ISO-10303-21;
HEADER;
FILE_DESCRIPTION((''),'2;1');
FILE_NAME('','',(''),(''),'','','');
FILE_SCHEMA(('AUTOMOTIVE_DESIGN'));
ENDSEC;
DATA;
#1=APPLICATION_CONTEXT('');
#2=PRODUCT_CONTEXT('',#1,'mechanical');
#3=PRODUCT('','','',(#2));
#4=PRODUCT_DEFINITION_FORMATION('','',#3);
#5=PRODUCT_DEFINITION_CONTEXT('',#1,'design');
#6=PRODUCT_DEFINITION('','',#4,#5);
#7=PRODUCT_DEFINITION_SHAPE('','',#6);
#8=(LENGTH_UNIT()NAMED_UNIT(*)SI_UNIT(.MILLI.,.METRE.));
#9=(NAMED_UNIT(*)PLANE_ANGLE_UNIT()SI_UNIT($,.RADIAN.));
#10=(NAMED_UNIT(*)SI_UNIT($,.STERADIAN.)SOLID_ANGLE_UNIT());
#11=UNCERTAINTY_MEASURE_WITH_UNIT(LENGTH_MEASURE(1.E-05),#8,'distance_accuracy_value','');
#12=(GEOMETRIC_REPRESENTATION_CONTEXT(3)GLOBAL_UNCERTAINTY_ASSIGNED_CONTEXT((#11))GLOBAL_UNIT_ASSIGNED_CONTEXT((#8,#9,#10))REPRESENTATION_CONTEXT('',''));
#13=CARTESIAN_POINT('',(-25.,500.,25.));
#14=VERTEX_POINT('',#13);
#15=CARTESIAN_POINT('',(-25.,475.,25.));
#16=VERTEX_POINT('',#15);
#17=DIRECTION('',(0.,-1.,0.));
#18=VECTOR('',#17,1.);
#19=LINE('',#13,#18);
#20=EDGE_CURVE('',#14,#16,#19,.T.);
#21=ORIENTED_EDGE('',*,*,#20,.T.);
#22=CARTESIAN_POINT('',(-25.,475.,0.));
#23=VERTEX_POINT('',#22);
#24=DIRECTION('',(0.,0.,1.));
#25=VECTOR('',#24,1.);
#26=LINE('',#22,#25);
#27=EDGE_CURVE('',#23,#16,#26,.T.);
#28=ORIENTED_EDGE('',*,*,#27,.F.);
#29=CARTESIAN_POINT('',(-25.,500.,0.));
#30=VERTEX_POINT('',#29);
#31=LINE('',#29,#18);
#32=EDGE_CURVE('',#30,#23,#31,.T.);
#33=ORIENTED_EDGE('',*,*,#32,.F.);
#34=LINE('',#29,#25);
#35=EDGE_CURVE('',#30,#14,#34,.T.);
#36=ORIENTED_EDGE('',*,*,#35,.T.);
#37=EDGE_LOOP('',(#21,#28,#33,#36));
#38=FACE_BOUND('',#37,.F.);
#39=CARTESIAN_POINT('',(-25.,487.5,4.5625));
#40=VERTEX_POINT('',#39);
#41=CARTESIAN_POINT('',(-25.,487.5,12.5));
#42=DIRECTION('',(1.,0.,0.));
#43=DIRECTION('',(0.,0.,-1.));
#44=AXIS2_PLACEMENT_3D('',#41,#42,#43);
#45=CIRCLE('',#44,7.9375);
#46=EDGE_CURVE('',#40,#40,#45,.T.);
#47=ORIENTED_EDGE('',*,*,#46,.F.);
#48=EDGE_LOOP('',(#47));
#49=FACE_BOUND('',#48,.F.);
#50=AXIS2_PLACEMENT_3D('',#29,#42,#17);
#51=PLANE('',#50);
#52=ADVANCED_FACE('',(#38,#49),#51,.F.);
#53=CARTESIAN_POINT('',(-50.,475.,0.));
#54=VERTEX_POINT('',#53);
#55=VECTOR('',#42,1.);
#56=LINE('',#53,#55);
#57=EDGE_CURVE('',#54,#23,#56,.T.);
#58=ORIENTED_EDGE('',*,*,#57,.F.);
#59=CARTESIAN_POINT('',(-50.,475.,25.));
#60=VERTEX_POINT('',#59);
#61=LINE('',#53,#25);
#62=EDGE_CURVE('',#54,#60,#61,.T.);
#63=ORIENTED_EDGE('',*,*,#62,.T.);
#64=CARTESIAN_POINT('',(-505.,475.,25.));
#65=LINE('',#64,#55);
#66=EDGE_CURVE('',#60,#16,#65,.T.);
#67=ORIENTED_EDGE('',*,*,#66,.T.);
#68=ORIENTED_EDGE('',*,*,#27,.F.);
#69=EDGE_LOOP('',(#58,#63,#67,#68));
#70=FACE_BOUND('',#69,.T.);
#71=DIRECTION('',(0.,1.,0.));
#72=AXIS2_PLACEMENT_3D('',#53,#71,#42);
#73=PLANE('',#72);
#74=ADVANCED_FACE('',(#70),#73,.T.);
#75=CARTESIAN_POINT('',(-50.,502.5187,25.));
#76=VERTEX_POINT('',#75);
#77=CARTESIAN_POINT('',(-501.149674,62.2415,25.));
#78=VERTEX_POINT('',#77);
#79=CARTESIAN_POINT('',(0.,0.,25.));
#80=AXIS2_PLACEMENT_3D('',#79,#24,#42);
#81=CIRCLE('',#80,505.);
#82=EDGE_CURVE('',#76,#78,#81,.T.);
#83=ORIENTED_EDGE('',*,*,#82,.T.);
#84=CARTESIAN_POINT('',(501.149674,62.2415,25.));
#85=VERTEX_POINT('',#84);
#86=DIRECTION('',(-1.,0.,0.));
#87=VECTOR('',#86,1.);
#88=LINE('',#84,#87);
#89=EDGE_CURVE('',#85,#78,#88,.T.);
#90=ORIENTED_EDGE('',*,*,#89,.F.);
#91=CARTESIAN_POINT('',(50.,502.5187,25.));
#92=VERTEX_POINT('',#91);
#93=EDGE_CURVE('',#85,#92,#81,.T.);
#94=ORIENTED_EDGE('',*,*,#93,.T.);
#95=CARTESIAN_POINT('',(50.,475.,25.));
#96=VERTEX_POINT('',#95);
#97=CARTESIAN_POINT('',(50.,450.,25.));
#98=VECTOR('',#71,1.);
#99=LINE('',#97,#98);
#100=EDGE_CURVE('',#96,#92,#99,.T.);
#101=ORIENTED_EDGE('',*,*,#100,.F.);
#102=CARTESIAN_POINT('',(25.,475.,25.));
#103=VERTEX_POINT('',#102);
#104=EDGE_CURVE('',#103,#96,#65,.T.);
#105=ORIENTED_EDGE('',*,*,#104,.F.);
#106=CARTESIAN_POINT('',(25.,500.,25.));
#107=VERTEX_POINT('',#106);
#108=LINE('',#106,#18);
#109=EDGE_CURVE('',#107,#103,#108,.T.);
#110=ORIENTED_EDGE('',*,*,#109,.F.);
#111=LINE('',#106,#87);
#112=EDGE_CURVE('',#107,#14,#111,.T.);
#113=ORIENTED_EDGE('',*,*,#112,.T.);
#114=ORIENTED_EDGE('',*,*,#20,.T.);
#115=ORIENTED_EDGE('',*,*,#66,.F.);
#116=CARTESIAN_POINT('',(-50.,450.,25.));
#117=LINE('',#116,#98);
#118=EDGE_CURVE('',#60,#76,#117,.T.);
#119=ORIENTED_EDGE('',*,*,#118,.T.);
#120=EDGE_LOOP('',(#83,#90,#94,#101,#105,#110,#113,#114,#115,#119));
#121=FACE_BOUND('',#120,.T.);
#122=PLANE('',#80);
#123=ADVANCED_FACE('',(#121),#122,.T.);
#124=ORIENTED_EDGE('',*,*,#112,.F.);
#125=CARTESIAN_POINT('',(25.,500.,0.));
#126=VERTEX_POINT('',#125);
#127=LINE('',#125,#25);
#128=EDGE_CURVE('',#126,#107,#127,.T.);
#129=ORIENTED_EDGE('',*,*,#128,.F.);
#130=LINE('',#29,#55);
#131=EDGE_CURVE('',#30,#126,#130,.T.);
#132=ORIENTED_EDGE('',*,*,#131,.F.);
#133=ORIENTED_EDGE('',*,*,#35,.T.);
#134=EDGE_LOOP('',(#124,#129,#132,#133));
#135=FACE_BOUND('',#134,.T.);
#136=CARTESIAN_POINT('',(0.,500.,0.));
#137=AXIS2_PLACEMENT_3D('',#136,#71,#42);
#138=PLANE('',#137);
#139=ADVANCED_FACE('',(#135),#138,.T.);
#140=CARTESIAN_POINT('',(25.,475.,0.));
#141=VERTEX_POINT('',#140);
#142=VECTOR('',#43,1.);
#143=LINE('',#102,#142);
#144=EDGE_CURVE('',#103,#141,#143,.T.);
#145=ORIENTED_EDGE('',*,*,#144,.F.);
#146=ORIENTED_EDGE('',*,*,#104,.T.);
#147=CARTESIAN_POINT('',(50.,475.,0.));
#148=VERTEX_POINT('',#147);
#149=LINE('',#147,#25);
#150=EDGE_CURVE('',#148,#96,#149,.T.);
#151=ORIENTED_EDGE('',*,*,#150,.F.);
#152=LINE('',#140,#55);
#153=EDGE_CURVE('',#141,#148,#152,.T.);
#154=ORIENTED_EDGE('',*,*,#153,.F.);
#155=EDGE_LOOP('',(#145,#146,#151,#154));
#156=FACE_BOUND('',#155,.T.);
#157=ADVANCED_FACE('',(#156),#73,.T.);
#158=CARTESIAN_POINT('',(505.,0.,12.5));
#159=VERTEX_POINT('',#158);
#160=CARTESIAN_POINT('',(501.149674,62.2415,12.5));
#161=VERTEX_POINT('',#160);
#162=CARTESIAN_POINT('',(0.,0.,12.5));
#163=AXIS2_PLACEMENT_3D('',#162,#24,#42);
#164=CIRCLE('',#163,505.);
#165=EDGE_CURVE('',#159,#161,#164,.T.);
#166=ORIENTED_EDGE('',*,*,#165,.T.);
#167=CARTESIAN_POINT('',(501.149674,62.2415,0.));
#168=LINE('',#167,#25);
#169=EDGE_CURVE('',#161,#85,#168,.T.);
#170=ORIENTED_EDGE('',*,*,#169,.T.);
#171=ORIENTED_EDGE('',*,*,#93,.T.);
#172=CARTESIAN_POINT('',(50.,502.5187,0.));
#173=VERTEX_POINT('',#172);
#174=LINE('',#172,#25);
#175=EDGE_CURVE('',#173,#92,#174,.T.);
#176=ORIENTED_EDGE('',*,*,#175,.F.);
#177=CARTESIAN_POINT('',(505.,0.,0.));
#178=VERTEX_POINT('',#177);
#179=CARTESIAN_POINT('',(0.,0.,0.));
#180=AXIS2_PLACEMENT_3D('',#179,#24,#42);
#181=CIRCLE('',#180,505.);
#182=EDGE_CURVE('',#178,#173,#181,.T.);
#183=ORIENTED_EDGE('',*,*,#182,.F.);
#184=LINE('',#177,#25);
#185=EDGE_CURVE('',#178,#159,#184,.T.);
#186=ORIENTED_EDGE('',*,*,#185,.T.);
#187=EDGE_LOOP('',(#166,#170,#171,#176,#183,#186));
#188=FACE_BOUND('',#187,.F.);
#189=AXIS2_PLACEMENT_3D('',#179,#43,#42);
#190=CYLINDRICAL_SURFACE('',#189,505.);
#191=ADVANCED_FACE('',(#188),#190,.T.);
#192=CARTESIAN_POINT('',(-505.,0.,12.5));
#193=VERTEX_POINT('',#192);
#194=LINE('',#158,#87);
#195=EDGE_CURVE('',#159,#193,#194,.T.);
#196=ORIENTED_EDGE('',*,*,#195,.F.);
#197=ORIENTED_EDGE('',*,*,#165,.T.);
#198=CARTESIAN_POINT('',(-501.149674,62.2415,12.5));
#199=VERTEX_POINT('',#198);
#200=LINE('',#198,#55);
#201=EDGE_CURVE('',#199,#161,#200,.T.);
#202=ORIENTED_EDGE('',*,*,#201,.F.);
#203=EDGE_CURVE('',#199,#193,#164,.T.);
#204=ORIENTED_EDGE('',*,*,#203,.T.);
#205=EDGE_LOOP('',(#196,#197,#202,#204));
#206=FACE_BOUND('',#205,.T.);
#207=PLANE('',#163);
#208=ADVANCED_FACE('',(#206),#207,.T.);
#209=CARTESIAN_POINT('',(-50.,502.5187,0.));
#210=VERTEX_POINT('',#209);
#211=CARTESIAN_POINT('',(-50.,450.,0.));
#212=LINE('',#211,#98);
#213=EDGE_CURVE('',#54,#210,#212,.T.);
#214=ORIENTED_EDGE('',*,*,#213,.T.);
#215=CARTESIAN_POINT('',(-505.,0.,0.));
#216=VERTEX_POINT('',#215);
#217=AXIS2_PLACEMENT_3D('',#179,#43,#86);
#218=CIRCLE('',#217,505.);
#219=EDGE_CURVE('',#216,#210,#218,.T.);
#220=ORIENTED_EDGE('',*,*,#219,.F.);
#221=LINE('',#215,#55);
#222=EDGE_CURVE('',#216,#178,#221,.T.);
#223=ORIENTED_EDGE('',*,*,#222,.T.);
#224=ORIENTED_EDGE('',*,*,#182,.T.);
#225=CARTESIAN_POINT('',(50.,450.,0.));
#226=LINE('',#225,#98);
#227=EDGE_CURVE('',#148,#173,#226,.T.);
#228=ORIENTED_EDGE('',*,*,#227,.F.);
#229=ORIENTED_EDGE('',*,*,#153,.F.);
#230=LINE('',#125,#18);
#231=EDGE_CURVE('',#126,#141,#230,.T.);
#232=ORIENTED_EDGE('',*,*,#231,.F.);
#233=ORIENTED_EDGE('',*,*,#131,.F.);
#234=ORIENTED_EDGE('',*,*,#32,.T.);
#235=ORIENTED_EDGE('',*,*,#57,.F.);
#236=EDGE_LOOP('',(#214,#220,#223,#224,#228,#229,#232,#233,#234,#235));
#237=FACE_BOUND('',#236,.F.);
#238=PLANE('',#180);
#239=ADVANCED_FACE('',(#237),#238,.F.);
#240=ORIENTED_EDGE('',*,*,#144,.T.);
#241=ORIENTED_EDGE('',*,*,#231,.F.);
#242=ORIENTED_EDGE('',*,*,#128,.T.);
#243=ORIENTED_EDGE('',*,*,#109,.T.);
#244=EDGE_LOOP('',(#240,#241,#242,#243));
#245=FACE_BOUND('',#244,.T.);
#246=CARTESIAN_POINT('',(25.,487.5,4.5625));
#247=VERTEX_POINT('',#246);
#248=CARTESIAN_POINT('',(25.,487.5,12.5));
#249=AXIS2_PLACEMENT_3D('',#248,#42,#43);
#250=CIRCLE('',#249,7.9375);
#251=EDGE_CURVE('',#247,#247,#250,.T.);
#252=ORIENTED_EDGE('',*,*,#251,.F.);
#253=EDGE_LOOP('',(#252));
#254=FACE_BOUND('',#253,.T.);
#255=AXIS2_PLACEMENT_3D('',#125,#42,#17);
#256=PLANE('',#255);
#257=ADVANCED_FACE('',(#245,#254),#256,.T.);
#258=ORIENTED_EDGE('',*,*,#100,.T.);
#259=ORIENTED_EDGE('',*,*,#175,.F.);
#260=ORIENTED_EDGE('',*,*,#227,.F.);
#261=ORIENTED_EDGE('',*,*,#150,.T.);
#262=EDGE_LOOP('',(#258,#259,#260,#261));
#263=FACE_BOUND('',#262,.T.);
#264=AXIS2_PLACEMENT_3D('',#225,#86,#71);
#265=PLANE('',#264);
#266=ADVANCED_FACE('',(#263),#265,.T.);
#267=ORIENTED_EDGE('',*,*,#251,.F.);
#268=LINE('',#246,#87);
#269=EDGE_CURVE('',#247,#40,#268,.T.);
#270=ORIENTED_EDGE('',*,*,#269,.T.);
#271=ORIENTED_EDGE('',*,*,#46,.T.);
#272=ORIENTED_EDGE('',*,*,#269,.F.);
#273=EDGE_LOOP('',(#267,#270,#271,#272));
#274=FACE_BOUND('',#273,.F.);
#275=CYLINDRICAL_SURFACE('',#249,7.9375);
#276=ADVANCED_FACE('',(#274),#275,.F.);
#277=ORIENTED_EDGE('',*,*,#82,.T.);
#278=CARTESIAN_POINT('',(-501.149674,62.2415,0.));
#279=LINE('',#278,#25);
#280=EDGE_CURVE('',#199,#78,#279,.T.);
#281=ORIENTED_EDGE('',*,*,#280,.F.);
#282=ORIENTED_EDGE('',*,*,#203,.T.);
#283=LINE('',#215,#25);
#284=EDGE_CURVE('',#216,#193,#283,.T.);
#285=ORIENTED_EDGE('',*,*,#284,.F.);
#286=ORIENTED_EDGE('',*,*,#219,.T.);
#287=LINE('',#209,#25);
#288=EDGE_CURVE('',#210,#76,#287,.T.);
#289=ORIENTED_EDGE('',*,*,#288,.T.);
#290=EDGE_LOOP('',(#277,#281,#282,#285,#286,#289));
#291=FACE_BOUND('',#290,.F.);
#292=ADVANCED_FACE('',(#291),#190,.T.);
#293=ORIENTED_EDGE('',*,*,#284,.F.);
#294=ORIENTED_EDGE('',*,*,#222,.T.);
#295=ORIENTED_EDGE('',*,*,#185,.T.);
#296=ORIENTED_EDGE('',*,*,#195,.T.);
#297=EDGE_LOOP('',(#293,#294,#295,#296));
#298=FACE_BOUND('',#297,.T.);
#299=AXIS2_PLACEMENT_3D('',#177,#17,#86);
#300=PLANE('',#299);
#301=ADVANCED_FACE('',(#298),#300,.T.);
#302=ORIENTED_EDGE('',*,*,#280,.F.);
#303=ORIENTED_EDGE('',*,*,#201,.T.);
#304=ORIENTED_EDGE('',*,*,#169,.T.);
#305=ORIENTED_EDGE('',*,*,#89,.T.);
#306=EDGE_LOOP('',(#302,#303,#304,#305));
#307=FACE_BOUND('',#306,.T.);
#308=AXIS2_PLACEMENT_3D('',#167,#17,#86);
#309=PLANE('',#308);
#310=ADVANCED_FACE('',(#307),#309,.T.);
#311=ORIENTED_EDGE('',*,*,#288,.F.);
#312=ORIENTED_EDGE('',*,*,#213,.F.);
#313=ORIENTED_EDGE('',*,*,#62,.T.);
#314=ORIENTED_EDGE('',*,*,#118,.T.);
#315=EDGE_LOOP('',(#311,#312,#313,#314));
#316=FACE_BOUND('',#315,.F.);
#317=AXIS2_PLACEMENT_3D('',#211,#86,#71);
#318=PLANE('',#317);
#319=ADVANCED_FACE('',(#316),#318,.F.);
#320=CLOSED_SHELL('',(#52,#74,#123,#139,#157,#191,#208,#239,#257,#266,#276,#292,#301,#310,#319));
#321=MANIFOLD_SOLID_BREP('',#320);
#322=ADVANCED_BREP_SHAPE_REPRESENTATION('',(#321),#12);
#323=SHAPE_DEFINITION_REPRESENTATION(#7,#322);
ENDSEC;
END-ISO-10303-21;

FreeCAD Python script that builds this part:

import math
import FreeCAD as App
import Part
import Sketcher
Q = App.Units.Quantity


def add_polygon(sketch, points):
    """Adds a closed chain of lines whose ends are joined by coincident constraints."""
    first, n = sketch.GeometryCount, len(points)
    for a, b in zip(points, points[1:] + points[:1]):
        sketch.addGeometry(Part.LineSegment(App.Vector(*a, 0), App.Vector(*b, 0)), False)
    for i in range(n):
        sketch.addConstraint(Sketcher.Constraint("Coincident", first + i, 2, first + (i + 1) % n, 1))

doc = App.newDocument("Part")
params = doc.addObject("Spreadsheet::Sheet", "Params")
for row, (alias, value) in enumerate([
    ("sketch1_radius", "505 mm"),
    ("sketch1_width", "25 mm"),
    ("sketch1_width2", "50 mm"),
    ("pad1_length", "25 mm"),
    ("pocket1_length", "50 mm"),
    ("sketch3_width", "25 mm"),
    ("pad2_length", "25 mm"),
    ("sketch4_radius", "505 mm"),
    ("pad3_length", "12.5 mm"),
], start=1):
    params.set(f"A{row}", alias)
    params.set(f"B{row}", "=" + value)
    params.setAlias(f"B{row}", alias)

body = doc.addObject("PartDesign::Body", "Body")

# Sketch on XY plane
sketch1 = body.newObject("Sketcher::SketchObject", "Sketch")
sketch1.AttachmentSupport = (doc.getObject("XY_Plane"), [""])
sketch1.MapMode = "FlatFace"
sketch1.addGeometry([
    Part.ArcOfCircle(Part.Circle(App.Vector(0, 0, 0), App.Vector(0, 0, 1), 505), math.radians(7), math.radians(84)),  # 0
    Part.LineSegment(App.Vector(50, 503, 0), App.Vector(50, 450, 0)),  # 1
    Part.LineSegment(App.Vector(50, 450, 0), App.Vector(25, 450, 0)),  # 2
    Part.LineSegment(App.Vector(25, 450, 0), App.Vector(25, 500, 0)),  # 3
    Part.LineSegment(App.Vector(25, 500, 0), App.Vector(-25, 500, 0)),  # 4
    Part.LineSegment(App.Vector(-25, 500, 0), App.Vector(-25, 450, 0)),  # 5
    Part.LineSegment(App.Vector(-25, 450, 0), App.Vector(-50, 450, 0)),  # 6
    Part.LineSegment(App.Vector(-50, 450, 0), App.Vector(-50, 503, 0)),  # 7
    Part.ArcOfCircle(Part.Circle(App.Vector(0, 0, 0), App.Vector(0, 0, 1), 505), math.radians(96), math.radians(173)),  # 8
    Part.LineSegment(App.Vector(-501, 62, 0), App.Vector(501, 62, 0)),  # 9
], False)
sketch1.addConstraint([
    Sketcher.Constraint("Coincident", 0, 2, 1, 1),
    Sketcher.Constraint("Coincident", 1, 2, 2, 1),
    Sketcher.Constraint("Coincident", 2, 2, 3, 1),
    Sketcher.Constraint("Coincident", 3, 2, 4, 1),
    Sketcher.Constraint("Coincident", 4, 2, 5, 1),
    Sketcher.Constraint("Coincident", 5, 2, 6, 1),
    Sketcher.Constraint("Coincident", 6, 2, 7, 1),
    Sketcher.Constraint("Coincident", 7, 2, 8, 1),
    Sketcher.Constraint("Coincident", 8, 2, 9, 1),
    Sketcher.Constraint("Coincident", 9, 2, 0, 1),
    Sketcher.Constraint("Vertical", 1),
    Sketcher.Constraint("Horizontal", 2),
    Sketcher.Constraint("Vertical", 3),
    Sketcher.Constraint("Horizontal", 4),
    Sketcher.Constraint("Vertical", 5),
    Sketcher.Constraint("Horizontal", 6),
    Sketcher.Constraint("Vertical", 7),
    Sketcher.Constraint("Horizontal", 9),
    Sketcher.Constraint("Coincident", 0, 3, -1, 1),
    Sketcher.Constraint("Coincident", 8, 3, -1, 1),
    Sketcher.Constraint("Equal", 0, 8),
    Sketcher.Constraint("Symmetric", 2, 2, 5, 2, -2),
    Sketcher.Constraint("Equal", 2, 6),
    Sketcher.Constraint("Equal", 4, 3),
    Sketcher.Constraint("Radius", 0, Q("505 mm")),
    Sketcher.Constraint("DistanceX", 2, 2, 2, 1, Q("25 mm")),
    Sketcher.Constraint("DistanceX", 4, 2, 4, 1, Q("50 mm")),
    Sketcher.Constraint("DistanceY", -1, 1, 1, 2, Q("450 mm")),
    Sketcher.Constraint("DistanceY", -1, 1, 9, 2, Q("62.2415 mm")),
])
sketch1.setExpression("Constraints[24]", "Params.sketch1_radius")
sketch1.setExpression("Constraints[25]", "Params.sketch1_width")
sketch1.setExpression("Constraints[26]", "Params.sketch1_width2")
pad1 = body.newObject("PartDesign::Pad", "Pad")
pad1.Profile = sketch1
pad1.setExpression("Length", "Params.pad1_length")

# Sketch on YZ plane
sketch2 = body.newObject("Sketcher::SketchObject", "Sketch001")
sketch2.AttachmentSupport = (doc.getObject("YZ_Plane"), [""])
sketch2.MapMode = "FlatFace"
sketch2.AttachmentOffset = App.Placement(App.Vector(0, 0, 25), App.Rotation())
sketch2.addGeometry(Part.Circle(App.Vector(488, 12, 0), App.Vector(0, 0, 1), 8), False)
sketch2.addConstraint([
    Sketcher.Constraint("Diameter", 0, Q("15.875 mm")),
    Sketcher.Constraint("DistanceY", -1, 1, 0, 3, Q("12.5 mm")),
    Sketcher.Constraint("DistanceX", -1, 1, 0, 3, Q("487.5 mm")),
])
pocket1 = body.newObject("PartDesign::Pocket", "Pocket")
pocket1.Profile = sketch2
pocket1.setExpression("Length", "Params.pocket1_length")

# Sketch on XZ plane
sketch3 = body.newObject("Sketcher::SketchObject", "Sketch002")
sketch3.AttachmentSupport = (doc.getObject("XZ_Plane"), [""])
sketch3.MapMode = "FlatFace"
sketch3.AttachmentOffset = App.Placement(App.Vector(0, 0, -450), App.Rotation())
add_polygon(sketch3, [(-50, 0), (-50, 25), (-25, 25), (-25, 0)])  # lines 0-3
add_polygon(sketch3, [(25, 0), (25, 25), (50, 25), (50, 0)])  # lines 4-7
sketch3.addConstraint([
    Sketcher.Constraint("Vertical", 0),
    Sketcher.Constraint("Horizontal", 1),
    Sketcher.Constraint("Vertical", 2),
    Sketcher.Constraint("Horizontal", 3),
    Sketcher.Constraint("Vertical", 4),
    Sketcher.Constraint("Horizontal", 5),
    Sketcher.Constraint("Vertical", 6),
    Sketcher.Constraint("Horizontal", 7),
    Sketcher.Constraint("Symmetric", 3, 2, 6, 2, -1, 1),
    Sketcher.Constraint("Symmetric", 1, 2, 4, 2, -2),
    Sketcher.Constraint("PointOnObject", 2, 2, -1),
    Sketcher.Constraint("Equal", 7, 0),
    Sketcher.Constraint("DistanceX", 1, 1, 1, 2, Q("25 mm")),
    Sketcher.Constraint("DistanceX", 0, 2, -1, 1, Q("50 mm")),
])
sketch3.setExpression("Constraints[20]", "Params.sketch3_width")
pad2 = body.newObject("PartDesign::Pad", "Pad001")
pad2.Profile = sketch3
pad2.setExpression("Length", "Params.pad2_length")
pad2.Reversed = True

# Sketch on XY plane
sketch4 = body.newObject("Sketcher::SketchObject", "Sketch003")
sketch4.AttachmentSupport = (doc.getObject("XY_Plane"), [""])
sketch4.MapMode = "FlatFace"
sketch4.addGeometry([
    Part.ArcOfCircle(Part.Circle(App.Vector(0, 0, 0), App.Vector(0, 0, 1), 505), math.radians(0), math.radians(7.08)),
    Part.LineSegment(App.Vector(501, 62, 0), App.Vector(-501, 62, 0)),
    Part.ArcOfCircle(Part.Circle(App.Vector(0, 0, 0), App.Vector(0, 0, 1), 505), math.radians(172.92), math.radians(180)),
    Part.LineSegment(App.Vector(-505, 0, 0), App.Vector(505, 0, 0)),
], False)
sketch4.addConstraint([
    Sketcher.Constraint("Coincident", 0, 2, 1, 1),
    Sketcher.Constraint("Coincident", 1, 2, 2, 1),
    Sketcher.Constraint("Coincident", 2, 2, 3, 1),
    Sketcher.Constraint("Coincident", 3, 2, 0, 1),
    Sketcher.Constraint("Horizontal", 1),
    Sketcher.Constraint("Horizontal", 3),
    Sketcher.Constraint("Coincident", 0, 3, -1, 1),
    Sketcher.Constraint("Coincident", 2, 3, -1, 1),
    Sketcher.Constraint("Equal", 0, 2),
    Sketcher.Constraint("PointOnObject", 3, 2, -1),
    Sketcher.Constraint("Radius", 0, Q("505 mm")),
    Sketcher.Constraint("DistanceY", -1, 1, 1, 2, Q("62.2415 mm")),
])
sketch4.setExpression("Constraints[10]", "Params.sketch4_radius")
pad3 = body.newObject("PartDesign::Pad", "Pad002")
pad3.Profile = sketch4
pad3.setExpression("Length", "Params.pad3_length")

doc.recompute()
